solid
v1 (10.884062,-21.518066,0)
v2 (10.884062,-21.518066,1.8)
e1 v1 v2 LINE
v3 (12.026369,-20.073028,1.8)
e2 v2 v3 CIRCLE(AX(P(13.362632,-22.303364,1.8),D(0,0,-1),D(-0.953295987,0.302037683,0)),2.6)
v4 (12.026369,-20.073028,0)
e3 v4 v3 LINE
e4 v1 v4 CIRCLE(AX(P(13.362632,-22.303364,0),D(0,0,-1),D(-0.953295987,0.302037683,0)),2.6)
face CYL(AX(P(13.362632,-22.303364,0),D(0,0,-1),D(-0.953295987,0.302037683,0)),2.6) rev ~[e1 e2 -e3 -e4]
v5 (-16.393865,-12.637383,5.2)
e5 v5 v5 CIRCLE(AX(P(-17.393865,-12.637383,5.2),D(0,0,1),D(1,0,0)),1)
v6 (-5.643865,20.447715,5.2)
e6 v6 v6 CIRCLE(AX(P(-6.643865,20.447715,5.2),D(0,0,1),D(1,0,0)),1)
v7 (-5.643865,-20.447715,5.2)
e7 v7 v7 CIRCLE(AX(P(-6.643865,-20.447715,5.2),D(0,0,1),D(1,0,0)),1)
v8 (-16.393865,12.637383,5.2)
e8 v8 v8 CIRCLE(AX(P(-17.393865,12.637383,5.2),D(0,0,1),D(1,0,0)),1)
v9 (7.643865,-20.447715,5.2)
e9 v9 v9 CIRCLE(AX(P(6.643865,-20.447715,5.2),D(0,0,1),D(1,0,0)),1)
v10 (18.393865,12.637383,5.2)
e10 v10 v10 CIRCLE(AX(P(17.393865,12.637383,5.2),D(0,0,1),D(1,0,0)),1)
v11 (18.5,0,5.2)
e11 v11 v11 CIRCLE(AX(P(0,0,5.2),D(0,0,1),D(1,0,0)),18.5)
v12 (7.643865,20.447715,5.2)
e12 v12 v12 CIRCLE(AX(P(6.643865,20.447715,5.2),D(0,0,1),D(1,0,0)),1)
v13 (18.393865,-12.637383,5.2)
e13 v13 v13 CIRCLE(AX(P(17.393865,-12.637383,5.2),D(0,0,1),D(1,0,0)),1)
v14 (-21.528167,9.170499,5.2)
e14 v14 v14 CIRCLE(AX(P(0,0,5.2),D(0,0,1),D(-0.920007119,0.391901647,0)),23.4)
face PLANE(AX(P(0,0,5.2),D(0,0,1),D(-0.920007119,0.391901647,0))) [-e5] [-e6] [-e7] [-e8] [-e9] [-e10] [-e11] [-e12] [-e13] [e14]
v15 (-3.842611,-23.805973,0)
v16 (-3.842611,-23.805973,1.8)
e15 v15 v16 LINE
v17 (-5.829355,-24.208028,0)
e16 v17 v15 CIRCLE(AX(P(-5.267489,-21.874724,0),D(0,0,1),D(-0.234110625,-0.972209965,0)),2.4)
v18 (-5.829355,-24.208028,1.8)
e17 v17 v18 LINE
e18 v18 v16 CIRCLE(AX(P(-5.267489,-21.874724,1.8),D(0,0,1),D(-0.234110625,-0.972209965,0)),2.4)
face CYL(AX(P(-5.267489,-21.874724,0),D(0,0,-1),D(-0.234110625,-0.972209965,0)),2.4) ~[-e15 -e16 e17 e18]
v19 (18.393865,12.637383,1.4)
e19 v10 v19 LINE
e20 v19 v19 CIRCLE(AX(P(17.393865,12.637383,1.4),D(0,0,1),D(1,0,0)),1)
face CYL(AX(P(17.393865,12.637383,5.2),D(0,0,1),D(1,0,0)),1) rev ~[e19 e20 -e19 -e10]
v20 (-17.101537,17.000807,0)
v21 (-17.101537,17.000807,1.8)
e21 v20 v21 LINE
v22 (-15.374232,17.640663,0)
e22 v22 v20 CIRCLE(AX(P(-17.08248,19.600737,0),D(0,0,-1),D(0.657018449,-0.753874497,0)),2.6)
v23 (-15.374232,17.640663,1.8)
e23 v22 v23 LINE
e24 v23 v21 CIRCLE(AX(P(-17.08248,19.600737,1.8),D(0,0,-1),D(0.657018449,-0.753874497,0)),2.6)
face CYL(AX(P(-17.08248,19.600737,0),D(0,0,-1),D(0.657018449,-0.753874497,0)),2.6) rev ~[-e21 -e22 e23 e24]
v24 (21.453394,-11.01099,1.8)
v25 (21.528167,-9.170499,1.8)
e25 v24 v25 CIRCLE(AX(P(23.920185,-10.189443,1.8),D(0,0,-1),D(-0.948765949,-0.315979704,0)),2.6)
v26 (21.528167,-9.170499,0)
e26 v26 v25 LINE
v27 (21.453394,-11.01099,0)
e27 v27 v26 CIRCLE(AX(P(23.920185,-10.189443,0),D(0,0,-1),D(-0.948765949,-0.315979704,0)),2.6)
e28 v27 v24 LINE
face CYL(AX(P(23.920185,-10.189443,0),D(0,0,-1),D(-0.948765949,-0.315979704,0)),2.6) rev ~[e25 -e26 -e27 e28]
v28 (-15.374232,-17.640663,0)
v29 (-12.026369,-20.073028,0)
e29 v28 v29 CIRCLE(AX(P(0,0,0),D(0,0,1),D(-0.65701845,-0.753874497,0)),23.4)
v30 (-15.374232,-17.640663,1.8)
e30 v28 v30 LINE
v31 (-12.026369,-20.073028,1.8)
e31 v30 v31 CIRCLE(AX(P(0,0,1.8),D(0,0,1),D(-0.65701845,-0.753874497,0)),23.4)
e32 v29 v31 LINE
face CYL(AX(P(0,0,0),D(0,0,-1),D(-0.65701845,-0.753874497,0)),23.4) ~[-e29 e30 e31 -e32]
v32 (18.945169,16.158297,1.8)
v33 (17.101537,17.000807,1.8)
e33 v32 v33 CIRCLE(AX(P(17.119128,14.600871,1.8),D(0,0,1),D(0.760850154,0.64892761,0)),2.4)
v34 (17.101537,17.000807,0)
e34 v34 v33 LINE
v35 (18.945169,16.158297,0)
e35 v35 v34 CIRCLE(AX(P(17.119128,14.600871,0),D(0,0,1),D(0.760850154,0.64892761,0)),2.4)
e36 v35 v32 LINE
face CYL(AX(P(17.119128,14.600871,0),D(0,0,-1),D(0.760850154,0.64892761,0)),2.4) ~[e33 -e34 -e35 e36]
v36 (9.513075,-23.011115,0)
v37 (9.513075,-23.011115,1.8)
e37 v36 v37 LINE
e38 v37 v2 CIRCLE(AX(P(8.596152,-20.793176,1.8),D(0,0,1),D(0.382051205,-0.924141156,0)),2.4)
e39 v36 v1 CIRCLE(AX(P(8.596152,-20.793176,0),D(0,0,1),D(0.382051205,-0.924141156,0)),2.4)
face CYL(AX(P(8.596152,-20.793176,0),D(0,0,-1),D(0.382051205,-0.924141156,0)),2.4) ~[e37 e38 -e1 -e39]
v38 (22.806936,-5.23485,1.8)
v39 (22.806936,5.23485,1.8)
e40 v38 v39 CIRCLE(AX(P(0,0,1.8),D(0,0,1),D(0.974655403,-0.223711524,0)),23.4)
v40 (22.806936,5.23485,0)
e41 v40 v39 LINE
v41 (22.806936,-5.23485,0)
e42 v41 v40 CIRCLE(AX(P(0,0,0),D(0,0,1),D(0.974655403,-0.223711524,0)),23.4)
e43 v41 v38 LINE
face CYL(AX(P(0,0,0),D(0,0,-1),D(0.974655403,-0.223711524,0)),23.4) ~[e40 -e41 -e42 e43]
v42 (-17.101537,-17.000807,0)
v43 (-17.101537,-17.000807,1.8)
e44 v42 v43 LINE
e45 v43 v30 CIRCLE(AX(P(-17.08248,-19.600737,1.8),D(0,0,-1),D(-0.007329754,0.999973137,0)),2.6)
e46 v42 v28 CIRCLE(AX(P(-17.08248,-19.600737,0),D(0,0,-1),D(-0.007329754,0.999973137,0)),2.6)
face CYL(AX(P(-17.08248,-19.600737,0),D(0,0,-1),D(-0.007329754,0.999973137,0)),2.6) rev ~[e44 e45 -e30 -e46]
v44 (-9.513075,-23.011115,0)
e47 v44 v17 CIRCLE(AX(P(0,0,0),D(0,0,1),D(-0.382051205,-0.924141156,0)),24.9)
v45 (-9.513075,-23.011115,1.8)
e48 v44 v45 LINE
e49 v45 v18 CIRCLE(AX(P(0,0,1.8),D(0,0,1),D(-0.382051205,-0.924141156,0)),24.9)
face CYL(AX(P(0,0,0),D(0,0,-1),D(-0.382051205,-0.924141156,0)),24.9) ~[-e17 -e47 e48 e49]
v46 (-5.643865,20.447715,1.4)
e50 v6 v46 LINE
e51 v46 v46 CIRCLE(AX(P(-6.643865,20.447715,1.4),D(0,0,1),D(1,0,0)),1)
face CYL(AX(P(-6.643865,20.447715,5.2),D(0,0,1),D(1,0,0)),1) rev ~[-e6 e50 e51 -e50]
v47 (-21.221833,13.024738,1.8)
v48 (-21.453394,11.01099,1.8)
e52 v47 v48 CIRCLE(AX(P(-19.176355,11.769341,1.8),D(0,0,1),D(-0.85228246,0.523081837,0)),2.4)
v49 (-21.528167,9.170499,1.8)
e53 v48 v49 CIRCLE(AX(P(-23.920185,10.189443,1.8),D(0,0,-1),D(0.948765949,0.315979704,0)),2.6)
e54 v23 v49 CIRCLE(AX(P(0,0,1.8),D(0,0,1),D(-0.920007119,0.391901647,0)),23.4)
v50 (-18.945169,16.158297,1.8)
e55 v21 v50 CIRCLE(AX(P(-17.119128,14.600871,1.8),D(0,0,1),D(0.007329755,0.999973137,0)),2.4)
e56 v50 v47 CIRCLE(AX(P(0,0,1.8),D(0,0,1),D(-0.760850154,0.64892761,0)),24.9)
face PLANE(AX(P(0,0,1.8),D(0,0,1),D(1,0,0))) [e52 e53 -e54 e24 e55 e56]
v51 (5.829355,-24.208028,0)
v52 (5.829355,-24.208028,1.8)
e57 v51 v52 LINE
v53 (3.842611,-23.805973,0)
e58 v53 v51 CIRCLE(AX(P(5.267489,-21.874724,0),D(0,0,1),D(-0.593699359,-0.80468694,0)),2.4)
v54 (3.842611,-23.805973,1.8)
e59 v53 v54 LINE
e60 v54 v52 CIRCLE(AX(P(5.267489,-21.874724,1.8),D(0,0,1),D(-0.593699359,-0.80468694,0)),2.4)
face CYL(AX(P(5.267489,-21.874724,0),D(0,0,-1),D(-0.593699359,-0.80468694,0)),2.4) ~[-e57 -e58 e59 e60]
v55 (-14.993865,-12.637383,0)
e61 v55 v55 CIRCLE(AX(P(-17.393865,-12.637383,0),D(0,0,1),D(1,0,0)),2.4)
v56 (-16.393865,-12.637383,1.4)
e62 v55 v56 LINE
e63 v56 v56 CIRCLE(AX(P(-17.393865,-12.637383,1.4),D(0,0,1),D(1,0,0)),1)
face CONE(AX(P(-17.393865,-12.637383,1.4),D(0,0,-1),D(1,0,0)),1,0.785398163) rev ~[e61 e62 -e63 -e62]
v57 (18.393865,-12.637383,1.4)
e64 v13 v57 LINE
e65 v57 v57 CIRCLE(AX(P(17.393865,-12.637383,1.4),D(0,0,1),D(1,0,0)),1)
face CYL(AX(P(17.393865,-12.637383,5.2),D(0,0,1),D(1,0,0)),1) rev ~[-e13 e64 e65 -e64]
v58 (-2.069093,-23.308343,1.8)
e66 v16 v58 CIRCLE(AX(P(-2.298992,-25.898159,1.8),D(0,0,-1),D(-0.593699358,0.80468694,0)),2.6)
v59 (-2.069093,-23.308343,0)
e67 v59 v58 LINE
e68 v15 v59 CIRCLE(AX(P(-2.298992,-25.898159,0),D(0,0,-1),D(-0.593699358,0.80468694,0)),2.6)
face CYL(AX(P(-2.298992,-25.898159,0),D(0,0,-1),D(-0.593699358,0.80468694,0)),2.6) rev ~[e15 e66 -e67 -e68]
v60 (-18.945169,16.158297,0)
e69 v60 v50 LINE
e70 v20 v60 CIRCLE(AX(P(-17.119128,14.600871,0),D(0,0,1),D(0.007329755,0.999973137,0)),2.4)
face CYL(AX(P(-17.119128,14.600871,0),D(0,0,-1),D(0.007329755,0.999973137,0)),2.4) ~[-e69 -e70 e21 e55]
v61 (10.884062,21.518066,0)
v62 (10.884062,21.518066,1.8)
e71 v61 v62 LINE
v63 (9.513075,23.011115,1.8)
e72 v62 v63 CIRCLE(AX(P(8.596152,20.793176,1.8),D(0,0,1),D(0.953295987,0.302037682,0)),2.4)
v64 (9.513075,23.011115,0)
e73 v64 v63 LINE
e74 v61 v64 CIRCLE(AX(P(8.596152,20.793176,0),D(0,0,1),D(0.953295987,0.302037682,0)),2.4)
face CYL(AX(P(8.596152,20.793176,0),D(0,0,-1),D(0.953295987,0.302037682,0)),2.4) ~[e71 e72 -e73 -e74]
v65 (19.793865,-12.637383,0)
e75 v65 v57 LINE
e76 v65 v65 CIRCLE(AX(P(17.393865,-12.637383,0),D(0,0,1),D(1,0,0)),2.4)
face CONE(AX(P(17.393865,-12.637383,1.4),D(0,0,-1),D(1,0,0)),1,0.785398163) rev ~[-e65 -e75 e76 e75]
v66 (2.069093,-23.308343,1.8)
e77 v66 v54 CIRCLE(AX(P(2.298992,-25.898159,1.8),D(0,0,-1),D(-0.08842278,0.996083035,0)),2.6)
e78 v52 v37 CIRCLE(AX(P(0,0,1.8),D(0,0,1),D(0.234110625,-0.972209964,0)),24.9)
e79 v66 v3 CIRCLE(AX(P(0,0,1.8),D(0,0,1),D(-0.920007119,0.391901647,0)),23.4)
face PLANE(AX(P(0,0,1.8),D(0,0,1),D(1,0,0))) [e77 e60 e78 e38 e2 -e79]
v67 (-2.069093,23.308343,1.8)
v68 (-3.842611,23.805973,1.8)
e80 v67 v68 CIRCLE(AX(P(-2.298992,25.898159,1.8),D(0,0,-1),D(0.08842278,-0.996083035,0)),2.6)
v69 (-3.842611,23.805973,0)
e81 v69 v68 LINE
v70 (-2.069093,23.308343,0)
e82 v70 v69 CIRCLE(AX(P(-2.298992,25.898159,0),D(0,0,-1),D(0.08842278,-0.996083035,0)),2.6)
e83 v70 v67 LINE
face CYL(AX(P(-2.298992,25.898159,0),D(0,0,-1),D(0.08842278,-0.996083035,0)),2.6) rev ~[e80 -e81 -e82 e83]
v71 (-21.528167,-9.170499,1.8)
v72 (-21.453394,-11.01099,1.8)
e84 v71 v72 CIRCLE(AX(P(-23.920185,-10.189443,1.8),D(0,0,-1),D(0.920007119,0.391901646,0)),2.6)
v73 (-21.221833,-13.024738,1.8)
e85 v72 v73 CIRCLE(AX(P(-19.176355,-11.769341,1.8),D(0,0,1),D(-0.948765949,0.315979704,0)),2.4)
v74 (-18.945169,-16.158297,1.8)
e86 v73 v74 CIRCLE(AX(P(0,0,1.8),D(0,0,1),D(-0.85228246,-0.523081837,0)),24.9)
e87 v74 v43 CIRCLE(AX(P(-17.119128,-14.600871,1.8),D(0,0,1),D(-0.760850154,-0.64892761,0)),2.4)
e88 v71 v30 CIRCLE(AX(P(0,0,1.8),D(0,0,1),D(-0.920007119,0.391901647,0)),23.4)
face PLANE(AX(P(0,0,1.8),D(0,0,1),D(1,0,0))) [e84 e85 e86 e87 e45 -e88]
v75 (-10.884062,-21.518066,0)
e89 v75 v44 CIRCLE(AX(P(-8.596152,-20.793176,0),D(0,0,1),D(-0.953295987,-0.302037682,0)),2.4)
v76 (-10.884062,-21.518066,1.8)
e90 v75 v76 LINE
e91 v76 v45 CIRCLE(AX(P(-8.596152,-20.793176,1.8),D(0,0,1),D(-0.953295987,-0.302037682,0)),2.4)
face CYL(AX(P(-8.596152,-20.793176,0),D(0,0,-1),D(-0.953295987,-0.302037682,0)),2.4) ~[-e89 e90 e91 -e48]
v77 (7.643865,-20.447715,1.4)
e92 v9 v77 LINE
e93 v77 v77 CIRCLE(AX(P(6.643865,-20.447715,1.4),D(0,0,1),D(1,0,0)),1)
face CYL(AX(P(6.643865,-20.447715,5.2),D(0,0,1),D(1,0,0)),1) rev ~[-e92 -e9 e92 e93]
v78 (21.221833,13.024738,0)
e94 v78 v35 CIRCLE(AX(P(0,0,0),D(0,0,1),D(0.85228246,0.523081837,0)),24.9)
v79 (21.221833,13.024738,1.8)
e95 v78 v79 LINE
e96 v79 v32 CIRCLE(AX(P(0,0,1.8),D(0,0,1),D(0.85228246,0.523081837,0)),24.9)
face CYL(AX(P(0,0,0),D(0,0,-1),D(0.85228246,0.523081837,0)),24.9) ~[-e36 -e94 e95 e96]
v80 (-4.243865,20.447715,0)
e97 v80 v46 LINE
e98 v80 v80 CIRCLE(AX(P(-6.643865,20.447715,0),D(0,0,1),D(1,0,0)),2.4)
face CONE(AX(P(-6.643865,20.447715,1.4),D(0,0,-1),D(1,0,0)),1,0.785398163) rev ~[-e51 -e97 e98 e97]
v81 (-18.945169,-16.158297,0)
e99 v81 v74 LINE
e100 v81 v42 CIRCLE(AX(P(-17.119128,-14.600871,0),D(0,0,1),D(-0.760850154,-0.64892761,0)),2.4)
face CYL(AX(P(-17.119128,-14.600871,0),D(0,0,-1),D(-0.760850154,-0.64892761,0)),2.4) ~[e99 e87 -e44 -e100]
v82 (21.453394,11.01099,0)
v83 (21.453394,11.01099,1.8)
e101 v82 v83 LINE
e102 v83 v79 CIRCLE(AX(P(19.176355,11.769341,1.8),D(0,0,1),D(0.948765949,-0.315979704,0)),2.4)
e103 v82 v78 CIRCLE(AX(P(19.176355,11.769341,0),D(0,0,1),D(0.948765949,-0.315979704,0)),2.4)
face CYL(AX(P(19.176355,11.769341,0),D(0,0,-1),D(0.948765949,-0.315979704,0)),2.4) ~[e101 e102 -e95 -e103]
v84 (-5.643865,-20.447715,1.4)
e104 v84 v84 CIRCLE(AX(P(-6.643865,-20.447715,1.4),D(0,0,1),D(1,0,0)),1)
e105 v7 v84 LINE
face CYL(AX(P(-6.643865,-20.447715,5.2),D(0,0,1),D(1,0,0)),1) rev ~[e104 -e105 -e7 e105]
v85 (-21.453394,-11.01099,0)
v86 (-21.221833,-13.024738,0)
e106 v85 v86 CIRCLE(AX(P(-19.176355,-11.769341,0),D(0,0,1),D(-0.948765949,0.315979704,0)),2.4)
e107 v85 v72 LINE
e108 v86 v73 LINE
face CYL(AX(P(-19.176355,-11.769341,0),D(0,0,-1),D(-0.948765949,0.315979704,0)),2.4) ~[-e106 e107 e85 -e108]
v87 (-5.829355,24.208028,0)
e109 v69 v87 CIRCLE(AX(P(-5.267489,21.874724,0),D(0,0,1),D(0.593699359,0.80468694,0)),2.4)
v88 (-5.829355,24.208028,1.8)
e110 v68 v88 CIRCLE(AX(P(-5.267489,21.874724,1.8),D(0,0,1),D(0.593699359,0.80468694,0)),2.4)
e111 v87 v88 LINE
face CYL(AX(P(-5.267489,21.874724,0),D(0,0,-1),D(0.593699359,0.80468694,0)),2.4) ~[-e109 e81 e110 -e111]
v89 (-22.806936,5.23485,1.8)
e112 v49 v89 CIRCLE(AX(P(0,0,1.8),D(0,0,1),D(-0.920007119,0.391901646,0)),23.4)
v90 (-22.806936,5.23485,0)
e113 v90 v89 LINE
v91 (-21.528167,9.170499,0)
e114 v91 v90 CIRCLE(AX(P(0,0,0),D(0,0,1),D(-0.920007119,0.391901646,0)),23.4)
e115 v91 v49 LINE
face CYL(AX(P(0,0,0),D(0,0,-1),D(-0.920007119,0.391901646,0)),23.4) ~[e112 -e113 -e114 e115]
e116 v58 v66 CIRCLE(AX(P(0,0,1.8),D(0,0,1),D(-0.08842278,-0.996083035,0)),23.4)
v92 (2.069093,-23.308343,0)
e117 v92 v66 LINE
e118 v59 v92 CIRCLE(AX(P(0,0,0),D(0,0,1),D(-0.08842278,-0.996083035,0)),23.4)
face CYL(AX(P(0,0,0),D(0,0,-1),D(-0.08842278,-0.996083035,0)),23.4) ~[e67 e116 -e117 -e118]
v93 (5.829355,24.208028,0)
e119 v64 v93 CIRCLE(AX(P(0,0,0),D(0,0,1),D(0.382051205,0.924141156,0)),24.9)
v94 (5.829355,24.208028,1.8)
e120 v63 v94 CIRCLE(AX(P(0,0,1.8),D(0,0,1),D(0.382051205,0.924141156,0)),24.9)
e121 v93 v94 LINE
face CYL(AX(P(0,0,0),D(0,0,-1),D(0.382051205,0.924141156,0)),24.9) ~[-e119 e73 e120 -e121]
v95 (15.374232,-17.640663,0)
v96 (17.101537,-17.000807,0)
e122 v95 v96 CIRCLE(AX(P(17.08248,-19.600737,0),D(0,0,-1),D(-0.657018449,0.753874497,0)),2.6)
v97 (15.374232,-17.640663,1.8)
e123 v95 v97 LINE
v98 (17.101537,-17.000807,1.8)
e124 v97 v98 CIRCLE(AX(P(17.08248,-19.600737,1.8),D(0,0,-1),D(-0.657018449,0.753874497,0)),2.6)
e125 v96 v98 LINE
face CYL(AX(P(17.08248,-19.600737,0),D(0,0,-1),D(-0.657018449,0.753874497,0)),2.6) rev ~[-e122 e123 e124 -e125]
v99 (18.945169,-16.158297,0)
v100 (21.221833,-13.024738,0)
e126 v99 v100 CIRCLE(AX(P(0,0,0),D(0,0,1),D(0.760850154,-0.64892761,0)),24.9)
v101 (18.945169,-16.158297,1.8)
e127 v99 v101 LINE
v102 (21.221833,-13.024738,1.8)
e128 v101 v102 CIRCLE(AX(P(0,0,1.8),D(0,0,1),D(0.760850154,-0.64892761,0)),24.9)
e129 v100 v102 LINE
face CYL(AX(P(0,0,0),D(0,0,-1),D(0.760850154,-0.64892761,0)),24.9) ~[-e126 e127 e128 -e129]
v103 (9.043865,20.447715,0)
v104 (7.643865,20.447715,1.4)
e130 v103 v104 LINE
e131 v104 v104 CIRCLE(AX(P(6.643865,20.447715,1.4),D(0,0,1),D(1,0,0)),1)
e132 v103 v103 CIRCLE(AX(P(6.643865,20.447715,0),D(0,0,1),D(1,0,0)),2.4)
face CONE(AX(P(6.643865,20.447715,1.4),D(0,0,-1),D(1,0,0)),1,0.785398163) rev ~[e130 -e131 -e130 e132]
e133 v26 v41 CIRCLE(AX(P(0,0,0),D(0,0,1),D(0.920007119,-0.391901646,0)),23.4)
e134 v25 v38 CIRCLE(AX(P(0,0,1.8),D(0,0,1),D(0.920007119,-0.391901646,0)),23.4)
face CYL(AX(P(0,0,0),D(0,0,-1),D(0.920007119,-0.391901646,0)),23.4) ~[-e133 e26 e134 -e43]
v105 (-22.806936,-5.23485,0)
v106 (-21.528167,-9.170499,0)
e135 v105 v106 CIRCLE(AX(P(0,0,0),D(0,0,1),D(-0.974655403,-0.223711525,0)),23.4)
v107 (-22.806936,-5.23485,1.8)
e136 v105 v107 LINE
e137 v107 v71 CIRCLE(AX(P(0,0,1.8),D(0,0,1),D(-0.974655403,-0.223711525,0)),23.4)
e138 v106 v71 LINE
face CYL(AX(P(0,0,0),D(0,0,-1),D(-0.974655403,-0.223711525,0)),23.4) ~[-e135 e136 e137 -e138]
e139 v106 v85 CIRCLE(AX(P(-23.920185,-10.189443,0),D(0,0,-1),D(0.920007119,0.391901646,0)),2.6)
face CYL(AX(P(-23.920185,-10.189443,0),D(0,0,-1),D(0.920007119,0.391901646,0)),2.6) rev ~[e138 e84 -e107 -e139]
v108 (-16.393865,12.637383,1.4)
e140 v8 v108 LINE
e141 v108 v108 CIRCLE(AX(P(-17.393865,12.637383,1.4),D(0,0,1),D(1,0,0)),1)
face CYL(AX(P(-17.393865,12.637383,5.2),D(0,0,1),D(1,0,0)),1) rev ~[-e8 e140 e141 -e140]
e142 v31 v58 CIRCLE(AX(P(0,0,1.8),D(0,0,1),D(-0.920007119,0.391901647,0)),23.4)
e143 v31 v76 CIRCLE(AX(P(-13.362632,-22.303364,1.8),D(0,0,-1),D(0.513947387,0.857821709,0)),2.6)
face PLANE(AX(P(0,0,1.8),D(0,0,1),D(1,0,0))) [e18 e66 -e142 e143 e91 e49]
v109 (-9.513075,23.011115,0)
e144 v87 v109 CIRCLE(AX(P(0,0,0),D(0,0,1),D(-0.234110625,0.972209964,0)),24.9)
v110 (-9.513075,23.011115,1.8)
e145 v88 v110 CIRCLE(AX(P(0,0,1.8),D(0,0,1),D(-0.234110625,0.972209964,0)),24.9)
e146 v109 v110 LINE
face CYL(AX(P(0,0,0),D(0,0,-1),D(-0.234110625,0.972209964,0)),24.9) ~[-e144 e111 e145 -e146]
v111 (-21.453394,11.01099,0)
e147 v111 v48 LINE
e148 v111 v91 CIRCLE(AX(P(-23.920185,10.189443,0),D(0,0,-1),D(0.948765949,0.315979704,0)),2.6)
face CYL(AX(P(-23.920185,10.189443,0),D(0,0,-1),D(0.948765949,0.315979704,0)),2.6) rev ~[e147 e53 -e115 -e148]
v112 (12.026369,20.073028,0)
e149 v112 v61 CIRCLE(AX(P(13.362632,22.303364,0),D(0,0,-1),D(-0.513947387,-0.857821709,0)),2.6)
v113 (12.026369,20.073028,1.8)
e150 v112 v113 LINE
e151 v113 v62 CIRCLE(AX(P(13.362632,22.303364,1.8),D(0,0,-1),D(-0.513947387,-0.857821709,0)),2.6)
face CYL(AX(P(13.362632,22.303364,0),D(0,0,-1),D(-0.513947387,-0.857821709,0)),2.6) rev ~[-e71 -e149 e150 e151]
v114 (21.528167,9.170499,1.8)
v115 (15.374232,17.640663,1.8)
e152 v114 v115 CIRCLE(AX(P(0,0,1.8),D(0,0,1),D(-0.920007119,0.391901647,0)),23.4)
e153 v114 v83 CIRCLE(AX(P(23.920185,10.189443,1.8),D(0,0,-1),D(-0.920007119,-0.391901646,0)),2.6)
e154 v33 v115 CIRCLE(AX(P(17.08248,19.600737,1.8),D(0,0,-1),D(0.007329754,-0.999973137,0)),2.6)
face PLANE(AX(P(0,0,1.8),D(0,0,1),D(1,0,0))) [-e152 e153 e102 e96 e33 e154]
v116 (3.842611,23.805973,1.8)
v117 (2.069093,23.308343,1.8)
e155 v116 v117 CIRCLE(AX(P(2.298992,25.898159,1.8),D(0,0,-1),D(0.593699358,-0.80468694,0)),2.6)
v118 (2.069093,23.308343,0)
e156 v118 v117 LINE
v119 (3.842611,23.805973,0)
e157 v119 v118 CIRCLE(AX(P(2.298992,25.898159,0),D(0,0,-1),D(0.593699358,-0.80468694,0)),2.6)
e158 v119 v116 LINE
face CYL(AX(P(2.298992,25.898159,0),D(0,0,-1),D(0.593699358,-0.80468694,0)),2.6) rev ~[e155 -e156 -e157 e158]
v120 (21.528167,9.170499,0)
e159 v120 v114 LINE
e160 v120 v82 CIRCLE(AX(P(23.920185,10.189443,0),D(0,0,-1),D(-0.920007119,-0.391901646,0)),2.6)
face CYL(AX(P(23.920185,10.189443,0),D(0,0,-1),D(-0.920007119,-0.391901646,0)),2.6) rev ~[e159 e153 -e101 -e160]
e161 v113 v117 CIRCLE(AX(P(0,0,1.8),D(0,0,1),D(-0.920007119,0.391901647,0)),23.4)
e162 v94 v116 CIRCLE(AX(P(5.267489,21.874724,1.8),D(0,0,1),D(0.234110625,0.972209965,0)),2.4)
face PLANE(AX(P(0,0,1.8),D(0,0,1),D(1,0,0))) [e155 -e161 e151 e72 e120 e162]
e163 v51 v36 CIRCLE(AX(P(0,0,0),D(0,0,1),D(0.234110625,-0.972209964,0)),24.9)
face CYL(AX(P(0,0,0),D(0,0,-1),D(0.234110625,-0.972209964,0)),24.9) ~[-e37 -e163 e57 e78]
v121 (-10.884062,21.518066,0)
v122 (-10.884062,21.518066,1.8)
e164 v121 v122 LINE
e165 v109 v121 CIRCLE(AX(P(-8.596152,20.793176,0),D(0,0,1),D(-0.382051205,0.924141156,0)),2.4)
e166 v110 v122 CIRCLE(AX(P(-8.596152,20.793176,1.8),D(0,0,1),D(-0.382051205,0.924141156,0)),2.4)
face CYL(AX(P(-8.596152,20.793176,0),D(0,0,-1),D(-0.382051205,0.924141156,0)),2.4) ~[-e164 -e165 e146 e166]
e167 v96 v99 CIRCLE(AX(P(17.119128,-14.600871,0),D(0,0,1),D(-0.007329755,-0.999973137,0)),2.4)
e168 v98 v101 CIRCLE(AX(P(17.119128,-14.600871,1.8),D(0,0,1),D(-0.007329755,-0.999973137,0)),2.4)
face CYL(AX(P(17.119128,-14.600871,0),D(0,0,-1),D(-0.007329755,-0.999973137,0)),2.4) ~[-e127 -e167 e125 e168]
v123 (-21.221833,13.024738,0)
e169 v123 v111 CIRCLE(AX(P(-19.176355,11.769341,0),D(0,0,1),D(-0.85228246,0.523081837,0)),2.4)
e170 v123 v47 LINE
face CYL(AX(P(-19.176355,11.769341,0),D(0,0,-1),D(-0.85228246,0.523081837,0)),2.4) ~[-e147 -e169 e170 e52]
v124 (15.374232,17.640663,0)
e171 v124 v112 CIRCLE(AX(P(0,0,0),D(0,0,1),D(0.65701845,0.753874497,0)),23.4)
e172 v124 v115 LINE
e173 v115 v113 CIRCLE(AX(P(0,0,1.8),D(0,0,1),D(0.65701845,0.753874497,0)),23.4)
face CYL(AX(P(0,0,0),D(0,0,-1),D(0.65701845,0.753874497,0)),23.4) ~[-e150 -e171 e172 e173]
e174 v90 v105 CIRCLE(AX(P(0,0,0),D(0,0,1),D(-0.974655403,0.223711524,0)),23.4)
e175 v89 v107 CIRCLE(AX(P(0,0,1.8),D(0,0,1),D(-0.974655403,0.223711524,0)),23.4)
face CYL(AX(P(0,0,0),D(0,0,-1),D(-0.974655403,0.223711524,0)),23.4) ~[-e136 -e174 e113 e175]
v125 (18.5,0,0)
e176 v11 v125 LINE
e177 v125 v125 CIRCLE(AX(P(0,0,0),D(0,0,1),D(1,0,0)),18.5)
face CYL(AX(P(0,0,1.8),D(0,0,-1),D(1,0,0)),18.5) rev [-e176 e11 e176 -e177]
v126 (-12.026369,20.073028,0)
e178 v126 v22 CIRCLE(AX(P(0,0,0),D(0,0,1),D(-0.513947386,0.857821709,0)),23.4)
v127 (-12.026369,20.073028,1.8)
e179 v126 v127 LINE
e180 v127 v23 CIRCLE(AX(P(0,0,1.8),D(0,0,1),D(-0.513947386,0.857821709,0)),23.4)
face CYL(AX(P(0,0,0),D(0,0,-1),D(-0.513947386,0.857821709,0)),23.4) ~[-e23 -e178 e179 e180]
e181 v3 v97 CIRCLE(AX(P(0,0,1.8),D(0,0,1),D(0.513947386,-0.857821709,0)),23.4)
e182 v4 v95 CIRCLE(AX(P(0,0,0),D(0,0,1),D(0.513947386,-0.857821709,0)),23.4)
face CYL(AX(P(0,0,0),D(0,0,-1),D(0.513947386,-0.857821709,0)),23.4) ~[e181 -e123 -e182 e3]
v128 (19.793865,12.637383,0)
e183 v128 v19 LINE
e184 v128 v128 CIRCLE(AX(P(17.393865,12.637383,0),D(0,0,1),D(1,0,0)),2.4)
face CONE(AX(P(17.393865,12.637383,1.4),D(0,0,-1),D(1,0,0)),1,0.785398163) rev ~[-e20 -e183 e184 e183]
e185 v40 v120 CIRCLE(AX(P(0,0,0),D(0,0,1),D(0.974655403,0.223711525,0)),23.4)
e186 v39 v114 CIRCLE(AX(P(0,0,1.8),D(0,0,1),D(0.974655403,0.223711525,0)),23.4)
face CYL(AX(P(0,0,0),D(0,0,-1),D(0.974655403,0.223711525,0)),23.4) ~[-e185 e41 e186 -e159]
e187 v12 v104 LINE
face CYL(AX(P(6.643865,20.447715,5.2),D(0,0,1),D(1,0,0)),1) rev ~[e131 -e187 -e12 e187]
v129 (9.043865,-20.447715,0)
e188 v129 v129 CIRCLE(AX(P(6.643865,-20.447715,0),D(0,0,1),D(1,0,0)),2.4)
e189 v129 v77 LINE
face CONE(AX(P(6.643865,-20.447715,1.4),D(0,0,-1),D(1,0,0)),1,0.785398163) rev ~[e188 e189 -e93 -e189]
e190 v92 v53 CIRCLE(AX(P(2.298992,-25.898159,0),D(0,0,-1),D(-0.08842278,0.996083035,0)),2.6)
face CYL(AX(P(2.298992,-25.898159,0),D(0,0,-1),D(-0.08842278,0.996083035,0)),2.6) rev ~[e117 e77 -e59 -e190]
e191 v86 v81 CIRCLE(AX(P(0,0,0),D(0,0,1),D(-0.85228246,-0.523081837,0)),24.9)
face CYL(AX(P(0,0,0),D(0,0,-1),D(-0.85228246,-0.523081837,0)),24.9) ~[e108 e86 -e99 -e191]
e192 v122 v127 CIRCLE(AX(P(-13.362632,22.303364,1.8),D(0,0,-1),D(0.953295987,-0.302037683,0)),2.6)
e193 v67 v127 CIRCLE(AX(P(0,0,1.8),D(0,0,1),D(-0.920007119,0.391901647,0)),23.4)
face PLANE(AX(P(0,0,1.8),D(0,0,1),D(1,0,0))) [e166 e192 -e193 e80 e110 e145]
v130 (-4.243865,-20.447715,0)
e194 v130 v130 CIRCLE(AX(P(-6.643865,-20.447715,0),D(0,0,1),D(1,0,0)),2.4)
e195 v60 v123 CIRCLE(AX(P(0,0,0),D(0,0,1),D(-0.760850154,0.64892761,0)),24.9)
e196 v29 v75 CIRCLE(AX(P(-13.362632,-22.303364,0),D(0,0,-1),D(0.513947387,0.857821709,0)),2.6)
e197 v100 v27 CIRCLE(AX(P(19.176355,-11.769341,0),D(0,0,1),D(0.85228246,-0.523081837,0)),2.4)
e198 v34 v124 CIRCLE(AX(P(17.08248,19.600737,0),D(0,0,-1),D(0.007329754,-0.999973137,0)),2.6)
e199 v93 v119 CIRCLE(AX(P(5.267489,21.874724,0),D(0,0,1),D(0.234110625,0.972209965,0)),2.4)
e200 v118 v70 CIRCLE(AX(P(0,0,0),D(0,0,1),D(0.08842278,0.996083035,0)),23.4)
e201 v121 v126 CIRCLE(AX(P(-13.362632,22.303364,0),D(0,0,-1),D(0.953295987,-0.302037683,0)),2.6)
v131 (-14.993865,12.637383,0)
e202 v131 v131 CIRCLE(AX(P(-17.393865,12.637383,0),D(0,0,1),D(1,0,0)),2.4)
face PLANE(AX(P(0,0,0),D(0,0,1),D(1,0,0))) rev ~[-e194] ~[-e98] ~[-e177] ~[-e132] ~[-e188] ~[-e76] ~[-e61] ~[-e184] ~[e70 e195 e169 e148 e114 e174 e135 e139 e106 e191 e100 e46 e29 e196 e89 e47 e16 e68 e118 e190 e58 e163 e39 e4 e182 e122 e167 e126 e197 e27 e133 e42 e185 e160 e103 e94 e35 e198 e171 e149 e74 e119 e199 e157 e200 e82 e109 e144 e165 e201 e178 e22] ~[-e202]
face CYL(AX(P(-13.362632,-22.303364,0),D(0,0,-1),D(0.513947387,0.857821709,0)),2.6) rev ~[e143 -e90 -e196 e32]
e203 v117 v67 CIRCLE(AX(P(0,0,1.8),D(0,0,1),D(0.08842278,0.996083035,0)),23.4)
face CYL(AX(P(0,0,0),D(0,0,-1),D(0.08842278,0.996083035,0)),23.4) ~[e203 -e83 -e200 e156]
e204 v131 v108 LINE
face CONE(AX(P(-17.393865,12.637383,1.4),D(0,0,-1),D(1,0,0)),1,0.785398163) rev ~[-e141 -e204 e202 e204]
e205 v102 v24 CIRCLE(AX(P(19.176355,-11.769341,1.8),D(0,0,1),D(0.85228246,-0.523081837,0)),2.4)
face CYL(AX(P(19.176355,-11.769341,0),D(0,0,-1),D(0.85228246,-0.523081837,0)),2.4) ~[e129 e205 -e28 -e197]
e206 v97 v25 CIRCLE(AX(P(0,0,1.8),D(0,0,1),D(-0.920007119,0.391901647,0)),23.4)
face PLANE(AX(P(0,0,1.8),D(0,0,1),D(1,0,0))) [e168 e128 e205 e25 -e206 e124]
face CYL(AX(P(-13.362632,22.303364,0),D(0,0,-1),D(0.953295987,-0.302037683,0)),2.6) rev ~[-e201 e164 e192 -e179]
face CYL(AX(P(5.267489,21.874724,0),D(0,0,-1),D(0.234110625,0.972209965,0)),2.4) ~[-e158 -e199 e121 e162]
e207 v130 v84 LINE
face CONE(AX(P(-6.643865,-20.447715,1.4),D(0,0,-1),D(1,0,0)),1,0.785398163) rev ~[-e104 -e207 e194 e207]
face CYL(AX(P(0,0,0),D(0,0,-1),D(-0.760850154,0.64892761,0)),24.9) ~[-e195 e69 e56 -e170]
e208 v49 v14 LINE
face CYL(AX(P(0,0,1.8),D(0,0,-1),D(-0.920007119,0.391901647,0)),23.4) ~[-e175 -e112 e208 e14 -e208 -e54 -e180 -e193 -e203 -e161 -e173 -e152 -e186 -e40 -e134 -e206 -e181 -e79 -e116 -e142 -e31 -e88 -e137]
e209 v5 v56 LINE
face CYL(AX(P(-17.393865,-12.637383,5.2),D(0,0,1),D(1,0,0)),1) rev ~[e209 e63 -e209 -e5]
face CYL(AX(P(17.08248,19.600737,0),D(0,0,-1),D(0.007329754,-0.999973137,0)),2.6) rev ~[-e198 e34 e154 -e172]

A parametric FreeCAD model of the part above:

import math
import FreeCAD as App
import Part
import Sketcher
from FreeCAD import Vector


def edges_at(feature, points):
    """Names of the edges that pass closest to the given points."""
    edges = feature.Shape.Edges
    near = lambda p: min(range(len(edges)), key=lambda i: edges[i].distToShape(Part.Vertex(*p))[0])
    return sorted({f"Edge{near(p) + 1}" for p in points})

doc = App.newDocument("Part")
body = doc.addObject("PartDesign::Body", "Body")

# Sketch on XY plane
sketch1 = doc.addObject("Sketcher::SketchObject", "Sketch")
body.addObject(sketch1)
sketch1.AttachmentSupport = (doc.XY_Plane, [""])
sketch1.MapMode = "FlatFace"
sketch1.addGeometry(Part.ArcOfCircle(Part.Circle(Vector(0, 0, 0), Vector(0, 0, 1), 23.4), math.radians(167), math.radians(193)), False)
sketch1.addGeometry(Part.ArcOfCircle(Part.Circle(Vector(0, 0, 0), Vector(0, 0, 1), 23.4), math.radians(-167.07), math.radians(-156.93)), False)
sketch1.addGeometry(Part.ArcOfCircle(Part.Circle(Vector(-23.9, -10.2, 0), Vector(0, 0, 1), 2.6), math.radians(-18), math.radians(23)), False)
sketch1.addGeometry(Part.ArcOfCircle(Part.Circle(Vector(-19.2, -11.8, 0), Vector(0, 0, 1), 2.4), math.radians(162), math.radians(212)), False)
sketch1.addGeometry(Part.ArcOfCircle(Part.Circle(Vector(0, 0, 0), Vector(0, 0, 1), 24.9), math.radians(-148.46), math.radians(-139.54)), False)
sketch1.addGeometry(Part.ArcOfCircle(Part.Circle(Vector(-17.1, -14.6, 0), Vector(0, 0, 1), 2.4), math.radians(-140), math.radians(-90)), False)
sketch1.addGeometry(Part.ArcOfCircle(Part.Circle(Vector(-17.1, -19.6, 0), Vector(0, 0, 1), 2.6), math.radians(49), math.radians(90)), False)
sketch1.addGeometry(Part.ArcOfCircle(Part.Circle(Vector(0, 0, 0), Vector(0, 0, 1), 23.4), math.radians(-131.07), math.radians(-120.93)), False)
sketch1.addGeometry(Part.ArcOfCircle(Part.Circle(Vector(-13.4, -22.3, 0), Vector(0, 0, 1), 2.6), math.radians(18), math.radians(59)), False)
sketch1.addGeometry(Part.ArcOfCircle(Part.Circle(Vector(-8.6, -20.8, 0), Vector(0, 0, 1), 2.4), math.radians(-162), math.radians(-112)), False)
sketch1.addGeometry(Part.ArcOfCircle(Part.Circle(Vector(0, 0, 0), Vector(0, 0, 1), 24.9), math.radians(-112.46), math.radians(-103.54)), False)
sketch1.addGeometry(Part.ArcOfCircle(Part.Circle(Vector(-5.3, -21.9, 0), Vector(0, 0, 1), 2.4), math.radians(-104), math.radians(-54)), False)
sketch1.addGeometry(Part.ArcOfCircle(Part.Circle(Vector(-2.3, -25.9, 0), Vector(0, 0, 1), 2.6), math.radians(85), math.radians(126)), False)
sketch1.addGeometry(Part.ArcOfCircle(Part.Circle(Vector(0, 0, 0), Vector(0, 0, 1), 23.4), math.radians(-95.07), math.radians(-84.93)), False)
sketch1.addGeometry(Part.ArcOfCircle(Part.Circle(Vector(2.3, -25.9, 0), Vector(0, 0, 1), 2.6), math.radians(54), math.radians(95)), False)
sketch1.addGeometry(Part.ArcOfCircle(Part.Circle(Vector(5.3, -21.9, 0), Vector(0, 0, 1), 2.4), math.radians(-126), math.radians(-76)), False)
sketch1.addGeometry(Part.ArcOfCircle(Part.Circle(Vector(0, 0, 0), Vector(0, 0, 1), 24.9), math.radians(-76.46), math.radians(-67.54)), False)
sketch1.addGeometry(Part.ArcOfCircle(Part.Circle(Vector(8.6, -20.8, 0), Vector(0, 0, 1), 2.4), math.radians(-68), math.radians(-18)), False)
sketch1.addGeometry(Part.ArcOfCircle(Part.Circle(Vector(13.4, -22.3, 0), Vector(0, 0, 1), 2.6), math.radians(121), math.radians(162)), False)
sketch1.addGeometry(Part.ArcOfCircle(Part.Circle(Vector(0, 0, 0), Vector(0, 0, 1), 23.4), math.radians(-59.07), math.radians(-48.93)), False)
sketch1.addGeometry(Part.ArcOfCircle(Part.Circle(Vector(17.1, -19.6, 0), Vector(0, 0, 1), 2.6), math.radians(90), math.radians(131)), False)
sketch1.addGeometry(Part.ArcOfCircle(Part.Circle(Vector(17.1, -14.6, 0), Vector(0, 0, 1), 2.4), math.radians(-90), math.radians(-40)), False)
sketch1.addGeometry(Part.ArcOfCircle(Part.Circle(Vector(0, 0, 0), Vector(0, 0, 1), 24.9), math.radians(-40.46), math.radians(-31.54)), False)
sketch1.addGeometry(Part.ArcOfCircle(Part.Circle(Vector(19.2, -11.8, 0), Vector(0, 0, 1), 2.4), math.radians(-32), math.radians(18)), False)
sketch1.addGeometry(Part.ArcOfCircle(Part.Circle(Vector(23.9, -10.2, 0), Vector(0, 0, 1), 2.6), math.radians(157), math.radians(198)), False)
sketch1.addGeometry(Part.ArcOfCircle(Part.Circle(Vector(0, 0, 0), Vector(0, 0, 1), 23.4), math.radians(-23.07), math.radians(-12.93)), False)
sketch1.addGeometry(Part.ArcOfCircle(Part.Circle(Vector(0, 0, 0), Vector(0, 0, 1), 23.4), math.radians(-13), math.radians(13)), False)
sketch1.addGeometry(Part.ArcOfCircle(Part.Circle(Vector(0, 0, 0), Vector(0, 0, 1), 23.4), math.radians(12.93), math.radians(23.07)), False)
sketch1.addGeometry(Part.ArcOfCircle(Part.Circle(Vector(23.9, 10.2, 0), Vector(0, 0, 1), 2.6), math.radians(162), math.radians(203)), False)
sketch1.addGeometry(Part.ArcOfCircle(Part.Circle(Vector(19.2, 11.8, 0), Vector(0, 0, 1), 2.4), math.radians(-18), math.radians(32)), False)
sketch1.addGeometry(Part.ArcOfCircle(Part.Circle(Vector(0, 0, 0), Vector(0, 0, 1), 24.9), math.radians(31.54), math.radians(40.46)), False)
sketch1.addGeometry(Part.ArcOfCircle(Part.Circle(Vector(17.1, 14.6, 0), Vector(0, 0, 1), 2.4), math.radians(40), math.radians(90)), False)
sketch1.addGeometry(Part.ArcOfCircle(Part.Circle(Vector(17.1, 19.6, 0), Vector(0, 0, 1), 2.6), math.radians(-131), math.radians(-90)), False)
sketch1.addGeometry(Part.ArcOfCircle(Part.Circle(Vector(0, 0, 0), Vector(0, 0, 1), 23.4), math.radians(48.93), math.radians(59.07)), False)
sketch1.addGeometry(Part.ArcOfCircle(Part.Circle(Vector(13.4, 22.3, 0), Vector(0, 0, 1), 2.6), math.radians(-162), math.radians(-121)), False)
sketch1.addGeometry(Part.ArcOfCircle(Part.Circle(Vector(8.6, 20.8, 0), Vector(0, 0, 1), 2.4), math.radians(18), math.radians(68)), False)
sketch1.addGeometry(Part.ArcOfCircle(Part.Circle(Vector(0, 0, 0), Vector(0, 0, 1), 24.9), math.radians(67.54), math.radians(76.46)), False)
sketch1.addGeometry(Part.ArcOfCircle(Part.Circle(Vector(5.3, 21.9, 0), Vector(0, 0, 1), 2.4), math.radians(76), math.radians(126)), False)
sketch1.addGeometry(Part.ArcOfCircle(Part.Circle(Vector(2.3, 25.9, 0), Vector(0, 0, 1), 2.6), math.radians(-95), math.radians(-54)), False)
sketch1.addGeometry(Part.ArcOfCircle(Part.Circle(Vector(0, 0, 0), Vector(0, 0, 1), 23.4), math.radians(84.93), math.radians(95.07)), False)
sketch1.addGeometry(Part.ArcOfCircle(Part.Circle(Vector(-2.3, 25.9, 0), Vector(0, 0, 1), 2.6), math.radians(-126), math.radians(-85)), False)
sketch1.addGeometry(Part.ArcOfCircle(Part.Circle(Vector(-5.3, 21.9, 0), Vector(0, 0, 1), 2.4), math.radians(54), math.radians(104)), False)
sketch1.addGeometry(Part.ArcOfCircle(Part.Circle(Vector(0, 0, 0), Vector(0, 0, 1), 24.9), math.radians(103.54), math.radians(112.46)), False)
sketch1.addGeometry(Part.ArcOfCircle(Part.Circle(Vector(-8.6, 20.8, 0), Vector(0, 0, 1), 2.4), math.radians(112), math.radians(162)), False)
sketch1.addGeometry(Part.ArcOfCircle(Part.Circle(Vector(-13.4, 22.3, 0), Vector(0, 0, 1), 2.6), math.radians(-59), math.radians(-18)), False)
sketch1.addGeometry(Part.ArcOfCircle(Part.Circle(Vector(0, 0, 0), Vector(0, 0, 1), 23.4), math.radians(120.93), math.radians(131.07)), False)
sketch1.addGeometry(Part.ArcOfCircle(Part.Circle(Vector(-17.1, 19.6, 0), Vector(0, 0, 1), 2.6), math.radians(-90), math.radians(-49)), False)
sketch1.addGeometry(Part.ArcOfCircle(Part.Circle(Vector(-17.1, 14.6, 0), Vector(0, 0, 1), 2.4), math.radians(90), math.radians(140)), False)
sketch1.addGeometry(Part.ArcOfCircle(Part.Circle(Vector(0, 0, 0), Vector(0, 0, 1), 24.9), math.radians(139.54), math.radians(148.46)), False)
sketch1.addGeometry(Part.ArcOfCircle(Part.Circle(Vector(-19.2, 11.8, 0), Vector(0, 0, 1), 2.4), math.radians(148), math.radians(198)), False)
sketch1.addGeometry(Part.ArcOfCircle(Part.Circle(Vector(-23.9, 10.2, 0), Vector(0, 0, 1), 2.6), math.radians(-23), math.radians(18)), False)
sketch1.addGeometry(Part.ArcOfCircle(Part.Circle(Vector(0, 0, 0), Vector(0, 0, 1), 23.4), math.radians(156.93), math.radians(167.07)), False)
sketch1.addGeometry(Part.Circle(Vector(0, 0, 0), Vector(0, 0, 1), 18.5), False)
sketch1.addConstraint(Sketcher.Constraint("Tangent", 0, 2, 1, 1))
sketch1.addConstraint(Sketcher.Constraint("Tangent", 1, 2, 2, 2))
sketch1.addConstraint(Sketcher.Constraint("Tangent", 2, 1, 3, 1))
sketch1.addConstraint(Sketcher.Constraint("Tangent", 3, 2, 4, 1))
sketch1.addConstraint(Sketcher.Constraint("Tangent", 4, 2, 5, 1))
sketch1.addConstraint(Sketcher.Constraint("Tangent", 5, 2, 6, 2))
sketch1.addConstraint(Sketcher.Constraint("Tangent", 6, 1, 7, 1))
sketch1.addConstraint(Sketcher.Constraint("Tangent", 7, 2, 8, 2))
sketch1.addConstraint(Sketcher.Constraint("Tangent", 8, 1, 9, 1))
sketch1.addConstraint(Sketcher.Constraint("Tangent", 9, 2, 10, 1))
sketch1.addConstraint(Sketcher.Constraint("Tangent", 10, 2, 11, 1))
sketch1.addConstraint(Sketcher.Constraint("Tangent", 11, 2, 12, 2))
sketch1.addConstraint(Sketcher.Constraint("Tangent", 12, 1, 13, 1))
sketch1.addConstraint(Sketcher.Constraint("Tangent", 13, 2, 14, 2))
sketch1.addConstraint(Sketcher.Constraint("Tangent", 14, 1, 15, 1))
sketch1.addConstraint(Sketcher.Constraint("Tangent", 15, 2, 16, 1))
sketch1.addConstraint(Sketcher.Constraint("Tangent", 16, 2, 17, 1))
sketch1.addConstraint(Sketcher.Constraint("Tangent", 17, 2, 18, 2))
sketch1.addConstraint(Sketcher.Constraint("Tangent", 18, 1, 19, 1))
sketch1.addConstraint(Sketcher.Constraint("Tangent", 19, 2, 20, 2))
sketch1.addConstraint(Sketcher.Constraint("Tangent", 20, 1, 21, 1))
sketch1.addConstraint(Sketcher.Constraint("Tangent", 21, 2, 22, 1))
sketch1.addConstraint(Sketcher.Constraint("Tangent", 22, 2, 23, 1))
sketch1.addConstraint(Sketcher.Constraint("Tangent", 23, 2, 24, 2))
sketch1.addConstraint(Sketcher.Constraint("Tangent", 24, 1, 25, 1))
sketch1.addConstraint(Sketcher.Constraint("Tangent", 25, 2, 26, 1))
sketch1.addConstraint(Sketcher.Constraint("Tangent", 26, 2, 27, 1))
sketch1.addConstraint(Sketcher.Constraint("Tangent", 27, 2, 28, 2))
sketch1.addConstraint(Sketcher.Constraint("Tangent", 28, 1, 29, 1))
sketch1.addConstraint(Sketcher.Constraint("Tangent", 29, 2, 30, 1))
sketch1.addConstraint(Sketcher.Constraint("Tangent", 30, 2, 31, 1))
sketch1.addConstraint(Sketcher.Constraint("Tangent", 31, 2, 32, 2))
sketch1.addConstraint(Sketcher.Constraint("Tangent", 32, 1, 33, 1))
sketch1.addConstraint(Sketcher.Constraint("Tangent", 33, 2, 34, 2))
sketch1.addConstraint(Sketcher.Constraint("Tangent", 34, 1, 35, 1))
sketch1.addConstraint(Sketcher.Constraint("Tangent", 35, 2, 36, 1))
sketch1.addConstraint(Sketcher.Constraint("Tangent", 36, 2, 37, 1))
sketch1.addConstraint(Sketcher.Constraint("Tangent", 37, 2, 38, 2))
sketch1.addConstraint(Sketcher.Constraint("Tangent", 38, 1, 39, 1))
sketch1.addConstraint(Sketcher.Constraint("Tangent", 39, 2, 40, 2))
sketch1.addConstraint(Sketcher.Constraint("Tangent", 40, 1, 41, 1))
sketch1.addConstraint(Sketcher.Constraint("Tangent", 41, 2, 42, 1))
sketch1.addConstraint(Sketcher.Constraint("Tangent", 42, 2, 43, 1))
sketch1.addConstraint(Sketcher.Constraint("Tangent", 43, 2, 44, 2))
sketch1.addConstraint(Sketcher.Constraint("Tangent", 44, 1, 45, 1))
sketch1.addConstraint(Sketcher.Constraint("Tangent", 45, 2, 46, 2))
sketch1.addConstraint(Sketcher.Constraint("Tangent", 46, 1, 47, 1))
sketch1.addConstraint(Sketcher.Constraint("Tangent", 47, 2, 48, 1))
sketch1.addConstraint(Sketcher.Constraint("Tangent", 48, 2, 49, 1))
sketch1.addConstraint(Sketcher.Constraint("Tangent", 49, 2, 50, 2))
sketch1.addConstraint(Sketcher.Constraint("Tangent", 50, 1, 51, 1))
sketch1.addConstraint(Sketcher.Constraint("Tangent", 51, 2, 0, 1))
sketch1.addConstraint(Sketcher.Constraint("Coincident", 0, 3, -1, 1))
sketch1.addConstraint(Sketcher.Constraint("Coincident", 4, 3, -1, 1))
sketch1.addConstraint(Sketcher.Constraint("Coincident", 7, 3, -1, 1))
sketch1.addConstraint(Sketcher.Constraint("Coincident", 10, 3, -1, 1))
sketch1.addConstraint(Sketcher.Constraint("Coincident", 13, 3, -1, 1))
sketch1.addConstraint(Sketcher.Constraint("Coincident", 16, 3, -1, 1))
sketch1.addConstraint(Sketcher.Constraint("Coincident", 19, 3, -1, 1))
sketch1.addConstraint(Sketcher.Constraint("Coincident", 22, 3, -1, 1))
sketch1.addConstraint(Sketcher.Constraint("Coincident", 25, 3, -1, 1))
sketch1.addConstraint(Sketcher.Constraint("Coincident", 27, 3, -1, 1))
sketch1.addConstraint(Sketcher.Constraint("Coincident", 30, 3, -1, 1))
sketch1.addConstraint(Sketcher.Constraint("Coincident", 33, 3, -1, 1))
sketch1.addConstraint(Sketcher.Constraint("Coincident", 36, 3, -1, 1))
sketch1.addConstraint(Sketcher.Constraint("Coincident", 39, 3, -1, 1))
sketch1.addConstraint(Sketcher.Constraint("Coincident", 42, 3, -1, 1))
sketch1.addConstraint(Sketcher.Constraint("Coincident", 45, 3, -1, 1))
sketch1.addConstraint(Sketcher.Constraint("Coincident", 48, 3, -1, 1))
sketch1.addConstraint(Sketcher.Constraint("Coincident", 52, 3, -1, 1))
sketch1.addConstraint(Sketcher.Constraint("Equal", 0, 1))
sketch1.addConstraint(Sketcher.Constraint("Equal", 3, 5))
sketch1.addConstraint(Sketcher.Constraint("Equal", 2, 6))
sketch1.addConstraint(Sketcher.Constraint("Equal", 1, 7))
sketch1.addConstraint(Sketcher.Constraint("Equal", 6, 8))
sketch1.addConstraint(Sketcher.Constraint("Equal", 5, 9))
sketch1.addConstraint(Sketcher.Constraint("Equal", 4, 10))
sketch1.addConstraint(Sketcher.Constraint("Equal", 9, 11))
sketch1.addConstraint(Sketcher.Constraint("Equal", 8, 12))
sketch1.addConstraint(Sketcher.Constraint("Equal", 7, 13))
sketch1.addConstraint(Sketcher.Constraint("Equal", 12, 14))
sketch1.addConstraint(Sketcher.Constraint("Equal", 11, 15))
sketch1.addConstraint(Sketcher.Constraint("Equal", 10, 16))
sketch1.addConstraint(Sketcher.Constraint("Equal", 15, 17))
sketch1.addConstraint(Sketcher.Constraint("Equal", 14, 18))
sketch1.addConstraint(Sketcher.Constraint("Equal", 13, 19))
sketch1.addConstraint(Sketcher.Constraint("Equal", 18, 20))
sketch1.addConstraint(Sketcher.Constraint("Equal", 17, 21))
sketch1.addConstraint(Sketcher.Constraint("Equal", 16, 22))
sketch1.addConstraint(Sketcher.Constraint("Equal", 21, 23))
sketch1.addConstraint(Sketcher.Constraint("Equal", 20, 24))
sketch1.addConstraint(Sketcher.Constraint("Equal", 19, 25))
sketch1.addConstraint(Sketcher.Constraint("Equal", 24, 28))
sketch1.addConstraint(Sketcher.Constraint("Equal", 23, 29))
sketch1.addConstraint(Sketcher.Constraint("Equal", 22, 30))
sketch1.addConstraint(Sketcher.Constraint("Equal", 29, 31))
sketch1.addConstraint(Sketcher.Constraint("Equal", 28, 32))
sketch1.addConstraint(Sketcher.Constraint("Equal", 27, 33))
sketch1.addConstraint(Sketcher.Constraint("Equal", 32, 34))
sketch1.addConstraint(Sketcher.Constraint("Equal", 31, 35))
sketch1.addConstraint(Sketcher.Constraint("Equal", 30, 36))
sketch1.addConstraint(Sketcher.Constraint("Equal", 35, 37))
sketch1.addConstraint(Sketcher.Constraint("Equal", 34, 38))
sketch1.addConstraint(Sketcher.Constraint("Equal", 33, 39))
sketch1.addConstraint(Sketcher.Constraint("Equal", 38, 40))
sketch1.addConstraint(Sketcher.Constraint("Equal", 37, 41))
sketch1.addConstraint(Sketcher.Constraint("Equal", 36, 42))
sketch1.addConstraint(Sketcher.Constraint("Equal", 41, 43))
sketch1.addConstraint(Sketcher.Constraint("Equal", 40, 44))
sketch1.addConstraint(Sketcher.Constraint("Equal", 39, 45))
sketch1.addConstraint(Sketcher.Constraint("Equal", 44, 46))
sketch1.addConstraint(Sketcher.Constraint("Equal", 43, 47))
sketch1.addConstraint(Sketcher.Constraint("Equal", 42, 48))
sketch1.addConstraint(Sketcher.Constraint("Equal", 47, 49))
sketch1.addConstraint(Sketcher.Constraint("Equal", 46, 50))
sketch1.addConstraint(Sketcher.Constraint("Equal", 45, 51))
sketch1.addConstraint(Sketcher.Constraint("Horizontal", 12, 3, 14, 3))
sketch1.addConstraint(Sketcher.Constraint("Horizontal", 9, 3, 17, 3))
sketch1.addConstraint(Sketcher.Constraint("Horizontal", 6, 3, 20, 3))
sketch1.addConstraint(Sketcher.Constraint("Horizontal", 3, 3, 23, 3))
sketch1.addConstraint(Sketcher.Constraint("Horizontal", 38, 3, 40, 3))
sketch1.addConstraint(Sketcher.Constraint("Horizontal", 35, 3, 43, 3))
sketch1.addConstraint(Sketcher.Constraint("Horizontal", 32, 3, 46, 3))
sketch1.addConstraint(Sketcher.Constraint("Horizontal", 29, 3, 49, 3))
sketch1.addConstraint(Sketcher.Constraint("Horizontal", 0, 2, 25, 2))
sketch1.addConstraint(Sketcher.Constraint("Horizontal", 26, 2, 51, 2))
sketch1.addConstraint(Sketcher.Constraint("Vertical", 24, 3, 28, 3))
sketch1.addConstraint(Sketcher.Constraint("Vertical", 21, 3, 31, 3))
sketch1.addConstraint(Sketcher.Constraint("Vertical", 18, 3, 34, 3))
sketch1.addConstraint(Sketcher.Constraint("Vertical", 15, 3, 37, 3))
sketch1.addConstraint(Sketcher.Constraint("Vertical", 25, 2, 26, 2))
sketch1.addConstraint(Sketcher.Constraint("Diameter", 52, 37.0))
sketch1.addConstraint(Sketcher.Constraint("Radius", 0, 23.4))
sketch1.addConstraint(Sketcher.Constraint("Radius", 2, 2.6))
sketch1.addConstraint(Sketcher.Constraint("Radius", 3, 2.4))
sketch1.addConstraint(Sketcher.Constraint("Radius", 4, 24.9))
sketch1.addConstraint(Sketcher.Constraint("DistanceY", 1, 2, -1, 1, 9.170499))
sketch1.addConstraint(Sketcher.Constraint("DistanceX", 5, 3, -1, 1, 17.119128))
sketch1.addConstraint(Sketcher.Constraint("DistanceX", 11, 3, -1, 1, 5.267489))
sketch1.addConstraint(Sketcher.Constraint("DistanceY", 0, 2, -1, 1, 5.23485))
sketch1.addConstraint(Sketcher.Constraint("DistanceX", 7, 2, -1, 1, 12.026369))
pad1 = doc.addObject("PartDesign::Pad", "Pad")
body.addObject(pad1)
pad1.Profile = sketch1
pad1.Length = 1.8

# Sketch on XY plane
sketch2 = doc.addObject("Sketcher::SketchObject", "Sketch001")
body.addObject(sketch2)
sketch2.AttachmentSupport = (doc.XY_Plane, [""])
sketch2.MapMode = "FlatFace"
sketch2.AttachmentOffset = App.Placement(Vector(0, 0, 1.8), App.Rotation())
sketch2.addGeometry(Part.Circle(Vector(0, 0, 0), Vector(0, 0, 1), 23), False)
sketch2.addGeometry(Part.Circle(Vector(0, 0, 0), Vector(0, 0, 1), 18), False)
sketch2.addConstraint(Sketcher.Constraint("Coincident", 0, 3, -1, 1))
sketch2.addConstraint(Sketcher.Constraint("Coincident", 1, 3, -1, 1))
sketch2.addConstraint(Sketcher.Constraint("Diameter", 1, 37.0))
sketch2.addConstraint(Sketcher.Constraint("Diameter", 0, 46.8))
pad2 = doc.addObject("PartDesign::Pad", "Pad001")
body.addObject(pad2)
pad2.Profile = sketch2
pad2.Length = 3.4

# Sketch on XY plane
sketch3 = doc.addObject("Sketcher::SketchObject", "Sketch002")
body.addObject(sketch3)
sketch3.AttachmentSupport = (doc.XY_Plane, [""])
sketch3.MapMode = "FlatFace"
sketch3.AttachmentOffset = App.Placement(Vector(0, 0, 5.2), App.Rotation())
sketch3.addGeometry(Part.Circle(Vector(-6.6, 20.4, 0), Vector(0, 0, 1), 1), False)
sketch3.addGeometry(Part.Circle(Vector(6.6, 20.4, 0), Vector(0, 0, 1), 1), False)
sketch3.addGeometry(Part.Circle(Vector(17.4, 12.6, 0), Vector(0, 0, 1), 1), False)
sketch3.addGeometry(Part.Circle(Vector(17.4, -12.6, 0), Vector(0, 0, 1), 1), False)
sketch3.addGeometry(Part.Circle(Vector(6.6, -20.4, 0), Vector(0, 0, 1), 1), False)
sketch3.addGeometry(Part.Circle(Vector(-6.6, -20.4, 0), Vector(0, 0, 1), 1), False)
sketch3.addGeometry(Part.Circle(Vector(-17.4, -12.6, 0), Vector(0, 0, 1), 1), False)
sketch3.addGeometry(Part.Circle(Vector(-17.4, 12.6, 0), Vector(0, 0, 1), 1), False)
sketch3.addConstraint(Sketcher.Constraint("Equal", 0, 1))
sketch3.addConstraint(Sketcher.Constraint("Equal", 1, 2))
sketch3.addConstraint(Sketcher.Constraint("Equal", 2, 3))
sketch3.addConstraint(Sketcher.Constraint("Equal", 3, 4))
sketch3.addConstraint(Sketcher.Constraint("Equal", 4, 5))
sketch3.addConstraint(Sketcher.Constraint("Equal", 5, 6))
sketch3.addConstraint(Sketcher.Constraint("Equal", 6, 7))
sketch3.addConstraint(Sketcher.Constraint("Symmetric", 0, 3, 4, 3, -1, 1))
sketch3.addConstraint(Sketcher.Constraint("Symmetric", 1, 3, 5, 3, -1, 1))
sketch3.addConstraint(Sketcher.Constraint("Symmetric", 2, 3, 6, 3, -1, 1))
sketch3.addConstraint(Sketcher.Constraint("Symmetric", 3, 3, 7, 3, -1, 1))
sketch3.addConstraint(Sketcher.Constraint("Symmetric", 0, 3, 1, 3, -2))
sketch3.addConstraint(Sketcher.Constraint("Symmetric", 3, 3, 6, 3, -2))
sketch3.addConstraint(Sketcher.Constraint("Diameter", 0, 2.0))
sketch3.addConstraint(Sketcher.Constraint("DistanceX", 1, 3, 2, 3, 10.75))
sketch3.addConstraint(Sketcher.Constraint("DistanceY", 3, 3, 1, 3, 33.085098))
sketch3.addConstraint(Sketcher.Constraint("DistanceX", 0, 3, 1, 3, 13.287731))
sketch3.addConstraint(Sketcher.Constraint("DistanceY", 4, 3, 1, 3, 40.89543))
pocket1 = doc.addObject("PartDesign::Pocket", "Pocket")
body.addObject(pocket1)
pocket1.Profile = sketch3
pocket1.Type = "ThroughAll"
doc.recompute()

chamfer = doc.addObject("PartDesign::Chamfer", "Chamfer")
body.addObject(chamfer)
chamfer.Base = (pocket1, edges_at(pocket1, [
    (-7.644, 20.448, 0),
    (5.644, 20.448, 0),
    (16.394, 12.637, 0),
    (16.394, -12.637, 0),
    (5.644, -20.448, 0),
    (-7.644, -20.448, 0),
    (-18.394, -12.637, 0),
    (-18.394, 12.637, 0),
]))
chamfer.Size = 1.4

doc.recompute()
